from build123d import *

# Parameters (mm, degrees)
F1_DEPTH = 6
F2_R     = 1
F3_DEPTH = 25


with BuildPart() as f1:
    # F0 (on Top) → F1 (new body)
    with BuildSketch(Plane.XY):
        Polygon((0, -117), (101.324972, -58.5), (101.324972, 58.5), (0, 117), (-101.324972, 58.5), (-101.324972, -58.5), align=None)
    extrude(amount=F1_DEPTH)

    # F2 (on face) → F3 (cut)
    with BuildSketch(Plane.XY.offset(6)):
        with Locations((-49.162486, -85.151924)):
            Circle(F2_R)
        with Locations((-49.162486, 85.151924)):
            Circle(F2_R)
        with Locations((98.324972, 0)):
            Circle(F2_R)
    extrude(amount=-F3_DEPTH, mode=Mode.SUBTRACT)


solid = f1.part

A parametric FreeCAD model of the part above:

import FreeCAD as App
import Part
import Sketcher

V = App.Vector
Q = App.Units.Quantity

doc = App.newDocument("Part")
body = doc.addObject("PartDesign::Body", "Body")

sketch1 = doc.addObject("Sketcher::SketchObject", "Sketch")
body.addObject(sketch1)
sketch1.AttachmentSupport = (doc.XY_Plane, [""])
sketch1.MapMode = "FlatFace"
sketch1.addGeometry(Part.LineSegment(V(0, -117, 0), V(101.324972, -58.5, 0)), False)
sketch1.addGeometry(Part.LineSegment(V(101.324972, -58.5, 0), V(101.324972, 58.5, 0)), False)
sketch1.addGeometry(Part.LineSegment(V(101.324972, 58.5, 0), V(0, 117, 0)), False)
sketch1.addGeometry(Part.LineSegment(V(0, 117, 0), V(-101.324972, 58.5, 0)), False)
sketch1.addGeometry(Part.LineSegment(V(-101.324972, 58.5, 0), V(-101.324972, -58.5, 0)), False)
sketch1.addGeometry(Part.LineSegment(V(-101.324972, -58.5, 0), V(0, -117, 0)), False)
sketch1.addConstraint(Sketcher.Constraint("Coincident", 0, 2, 1, 1))
sketch1.addConstraint(Sketcher.Constraint("Coincident", 1, 2, 2, 1))
sketch1.addConstraint(Sketcher.Constraint("Coincident", 2, 2, 3, 1))
sketch1.addConstraint(Sketcher.Constraint("Coincident", 3, 2, 4, 1))
sketch1.addConstraint(Sketcher.Constraint("Coincident", 4, 2, 5, 1))
sketch1.addConstraint(Sketcher.Constraint("Coincident", 5, 2, 0, 1))
sketch1.addConstraint(Sketcher.Constraint("Vertical", 1))
sketch1.addConstraint(Sketcher.Constraint("Vertical", 4))
sketch1.addConstraint(Sketcher.Constraint("Symmetric", 0, 2, 3, 2, -1, 1))
sketch1.addConstraint(Sketcher.Constraint("Symmetric", 2, 2, 5, 2, -1, 1))
sketch1.addConstraint(Sketcher.Constraint("PointOnObject", 2, 2, -2))
sketch1.addConstraint(Sketcher.Constraint("Parallel", 2, 5))
sketch1.addConstraint(Sketcher.Constraint("Horizontal", 1, 2, 3, 2))
sketch1.addConstraint(Sketcher.Constraint("DistanceY", 1, 1, 1, 2, 117.0))
sketch1.addConstraint(Sketcher.Constraint("Angle", 0, Q("30 deg")))
sketch1.addConstraint(Sketcher.Constraint("Distance", 0, 117.0))
pad1 = doc.addObject("PartDesign::Pad", "Pad")
body.addObject(pad1)
pad1.Profile = sketch1
pad1.Length = 6

sketch2 = doc.addObject("Sketcher::SketchObject", "Sketch001")
body.addObject(sketch2)
sketch2.AttachmentSupport = (doc.XY_Plane, [""])
sketch2.MapMode = "FlatFace"
sketch2.AttachmentOffset = App.Placement(V(0, 0, 6), App.Rotation())
sketch2.addGeometry(Part.Circle(V(-49.162486, -85.151924, 0), V(0, 0, 1), 1), False)
sketch2.addGeometry(Part.Circle(V(-49.162486, 85.151924, 0), V(0, 0, 1), 1), False)
sketch2.addGeometry(Part.Circle(V(98.324972, 0, 0), V(0, 0, 1), 1), False)
sketch2.addConstraint(Sketcher.Constraint("Equal", 0, 1))
sketch2.addConstraint(Sketcher.Constraint("Equal", 1, 2))
sketch2.addConstraint(Sketcher.Constraint("Symmetric", 0, 3, 1, 3, -1))
sketch2.addConstraint(Sketcher.Constraint("PointOnObject", 2, 3, -1))
sketch2.addConstraint(Sketcher.Constraint("Diameter", 0, 2.0))
sketch2.addConstraint(Sketcher.Constraint("DistanceX", 0, 3, 2, 3, 147.487458))
sketch2.addConstraint(Sketcher.Constraint("DistanceX", 0, 3, -1, 1, 49.162486))
sketch2.addConstraint(Sketcher.Constraint("DistanceY", 0, 3, -1, 1, 85.151924))
pocket1 = doc.addObject("PartDesign::Pocket", "Pocket")
body.addObject(pocket1)
pocket1.Profile = sketch2
pocket1.Length = 25

doc.recompute()
